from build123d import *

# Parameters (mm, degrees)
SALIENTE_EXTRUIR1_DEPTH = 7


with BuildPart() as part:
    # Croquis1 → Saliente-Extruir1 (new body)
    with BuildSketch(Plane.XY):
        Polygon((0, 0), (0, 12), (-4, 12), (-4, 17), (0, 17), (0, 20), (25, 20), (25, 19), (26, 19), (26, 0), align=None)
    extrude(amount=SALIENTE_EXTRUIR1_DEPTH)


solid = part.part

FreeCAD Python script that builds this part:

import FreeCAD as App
import Part
import Sketcher

V = App.Vector

doc = App.newDocument("Part")
body = doc.addObject("PartDesign::Body", "Body")

# Sketch on XY plane
sketch1 = body.newObject("Sketcher::SketchObject", "Sketch")
sketch1.AttachmentSupport = (doc.getObject("XY_Plane"), [""])
sketch1.MapMode = "FlatFace"
sketch1.addGeometry([
    Part.LineSegment(V(0, 12, 0), V(0, 0, 0)),  # 0
    Part.LineSegment(V(0, 0, 0), V(26, 0, 0)),  # 1
    Part.LineSegment(V(26, 0, 0), V(26, 19, 0)),  # 2
    Part.LineSegment(V(26, 19, 0), V(25, 19, 0)),  # 3
    Part.LineSegment(V(25, 19, 0), V(25, 20, 0)),  # 4
    Part.LineSegment(V(25, 20, 0), V(0, 20, 0)),  # 5
    Part.LineSegment(V(0, 20, 0), V(0, 17, 0)),  # 6
    Part.LineSegment(V(0, 17, 0), V(-4, 17, 0)),  # 7
    Part.LineSegment(V(-4, 17, 0), V(-4, 12, 0)),  # 8
    Part.LineSegment(V(-4, 12, 0), V(0, 12, 0)),  # 9
], False)
sketch1.addConstraint([
    Sketcher.Constraint("Coincident", 0, 2, 1, 1),
    Sketcher.Constraint("Coincident", 1, 2, 2, 1),
    Sketcher.Constraint("Coincident", 2, 2, 3, 1),
    Sketcher.Constraint("Coincident", 3, 2, 4, 1),
    Sketcher.Constraint("Coincident", 4, 2, 5, 1),
    Sketcher.Constraint("Coincident", 5, 2, 6, 1),
    Sketcher.Constraint("Coincident", 6, 2, 7, 1),
    Sketcher.Constraint("Coincident", 7, 2, 8, 1),
    Sketcher.Constraint("Coincident", 8, 2, 9, 1),
    Sketcher.Constraint("Coincident", 9, 2, 0, 1),
    Sketcher.Constraint("Vertical", 0),
    Sketcher.Constraint("Horizontal", 1),
    Sketcher.Constraint("Vertical", 2),
    Sketcher.Constraint("Horizontal", 3),
    Sketcher.Constraint("Vertical", 4),
    Sketcher.Constraint("Horizontal", 5),
    Sketcher.Constraint("Vertical", 6),
    Sketcher.Constraint("Horizontal", 7),
    Sketcher.Constraint("Vertical", 8),
    Sketcher.Constraint("Horizontal", 9),
    Sketcher.Constraint("Coincident", 0, 2, -1, 1),
    Sketcher.Constraint("PointOnObject", 5, 2, -2),
    Sketcher.Constraint("Equal", 3, 4),
    Sketcher.Constraint("DistanceX", 1, 1, 1, 2, 26.0),
    Sketcher.Constraint("DistanceX", 3, 2, 3, 1, 1.0),
    Sketcher.Constraint("DistanceX", 7, 2, 7, 1, 4.0),
    Sketcher.Constraint("DistanceY", 0, 2, 0, 1, 12.0),
    Sketcher.Constraint("DistanceY", 2, 1, 2, 2, 19.0),
    Sketcher.Constraint("DistanceY", 6, 2, 6, 1, 3.0),
])
pad1 = body.newObject("PartDesign::Pad", "Pad")
pad1.Profile = sketch1
pad1.Length = 7

doc.recompute()
